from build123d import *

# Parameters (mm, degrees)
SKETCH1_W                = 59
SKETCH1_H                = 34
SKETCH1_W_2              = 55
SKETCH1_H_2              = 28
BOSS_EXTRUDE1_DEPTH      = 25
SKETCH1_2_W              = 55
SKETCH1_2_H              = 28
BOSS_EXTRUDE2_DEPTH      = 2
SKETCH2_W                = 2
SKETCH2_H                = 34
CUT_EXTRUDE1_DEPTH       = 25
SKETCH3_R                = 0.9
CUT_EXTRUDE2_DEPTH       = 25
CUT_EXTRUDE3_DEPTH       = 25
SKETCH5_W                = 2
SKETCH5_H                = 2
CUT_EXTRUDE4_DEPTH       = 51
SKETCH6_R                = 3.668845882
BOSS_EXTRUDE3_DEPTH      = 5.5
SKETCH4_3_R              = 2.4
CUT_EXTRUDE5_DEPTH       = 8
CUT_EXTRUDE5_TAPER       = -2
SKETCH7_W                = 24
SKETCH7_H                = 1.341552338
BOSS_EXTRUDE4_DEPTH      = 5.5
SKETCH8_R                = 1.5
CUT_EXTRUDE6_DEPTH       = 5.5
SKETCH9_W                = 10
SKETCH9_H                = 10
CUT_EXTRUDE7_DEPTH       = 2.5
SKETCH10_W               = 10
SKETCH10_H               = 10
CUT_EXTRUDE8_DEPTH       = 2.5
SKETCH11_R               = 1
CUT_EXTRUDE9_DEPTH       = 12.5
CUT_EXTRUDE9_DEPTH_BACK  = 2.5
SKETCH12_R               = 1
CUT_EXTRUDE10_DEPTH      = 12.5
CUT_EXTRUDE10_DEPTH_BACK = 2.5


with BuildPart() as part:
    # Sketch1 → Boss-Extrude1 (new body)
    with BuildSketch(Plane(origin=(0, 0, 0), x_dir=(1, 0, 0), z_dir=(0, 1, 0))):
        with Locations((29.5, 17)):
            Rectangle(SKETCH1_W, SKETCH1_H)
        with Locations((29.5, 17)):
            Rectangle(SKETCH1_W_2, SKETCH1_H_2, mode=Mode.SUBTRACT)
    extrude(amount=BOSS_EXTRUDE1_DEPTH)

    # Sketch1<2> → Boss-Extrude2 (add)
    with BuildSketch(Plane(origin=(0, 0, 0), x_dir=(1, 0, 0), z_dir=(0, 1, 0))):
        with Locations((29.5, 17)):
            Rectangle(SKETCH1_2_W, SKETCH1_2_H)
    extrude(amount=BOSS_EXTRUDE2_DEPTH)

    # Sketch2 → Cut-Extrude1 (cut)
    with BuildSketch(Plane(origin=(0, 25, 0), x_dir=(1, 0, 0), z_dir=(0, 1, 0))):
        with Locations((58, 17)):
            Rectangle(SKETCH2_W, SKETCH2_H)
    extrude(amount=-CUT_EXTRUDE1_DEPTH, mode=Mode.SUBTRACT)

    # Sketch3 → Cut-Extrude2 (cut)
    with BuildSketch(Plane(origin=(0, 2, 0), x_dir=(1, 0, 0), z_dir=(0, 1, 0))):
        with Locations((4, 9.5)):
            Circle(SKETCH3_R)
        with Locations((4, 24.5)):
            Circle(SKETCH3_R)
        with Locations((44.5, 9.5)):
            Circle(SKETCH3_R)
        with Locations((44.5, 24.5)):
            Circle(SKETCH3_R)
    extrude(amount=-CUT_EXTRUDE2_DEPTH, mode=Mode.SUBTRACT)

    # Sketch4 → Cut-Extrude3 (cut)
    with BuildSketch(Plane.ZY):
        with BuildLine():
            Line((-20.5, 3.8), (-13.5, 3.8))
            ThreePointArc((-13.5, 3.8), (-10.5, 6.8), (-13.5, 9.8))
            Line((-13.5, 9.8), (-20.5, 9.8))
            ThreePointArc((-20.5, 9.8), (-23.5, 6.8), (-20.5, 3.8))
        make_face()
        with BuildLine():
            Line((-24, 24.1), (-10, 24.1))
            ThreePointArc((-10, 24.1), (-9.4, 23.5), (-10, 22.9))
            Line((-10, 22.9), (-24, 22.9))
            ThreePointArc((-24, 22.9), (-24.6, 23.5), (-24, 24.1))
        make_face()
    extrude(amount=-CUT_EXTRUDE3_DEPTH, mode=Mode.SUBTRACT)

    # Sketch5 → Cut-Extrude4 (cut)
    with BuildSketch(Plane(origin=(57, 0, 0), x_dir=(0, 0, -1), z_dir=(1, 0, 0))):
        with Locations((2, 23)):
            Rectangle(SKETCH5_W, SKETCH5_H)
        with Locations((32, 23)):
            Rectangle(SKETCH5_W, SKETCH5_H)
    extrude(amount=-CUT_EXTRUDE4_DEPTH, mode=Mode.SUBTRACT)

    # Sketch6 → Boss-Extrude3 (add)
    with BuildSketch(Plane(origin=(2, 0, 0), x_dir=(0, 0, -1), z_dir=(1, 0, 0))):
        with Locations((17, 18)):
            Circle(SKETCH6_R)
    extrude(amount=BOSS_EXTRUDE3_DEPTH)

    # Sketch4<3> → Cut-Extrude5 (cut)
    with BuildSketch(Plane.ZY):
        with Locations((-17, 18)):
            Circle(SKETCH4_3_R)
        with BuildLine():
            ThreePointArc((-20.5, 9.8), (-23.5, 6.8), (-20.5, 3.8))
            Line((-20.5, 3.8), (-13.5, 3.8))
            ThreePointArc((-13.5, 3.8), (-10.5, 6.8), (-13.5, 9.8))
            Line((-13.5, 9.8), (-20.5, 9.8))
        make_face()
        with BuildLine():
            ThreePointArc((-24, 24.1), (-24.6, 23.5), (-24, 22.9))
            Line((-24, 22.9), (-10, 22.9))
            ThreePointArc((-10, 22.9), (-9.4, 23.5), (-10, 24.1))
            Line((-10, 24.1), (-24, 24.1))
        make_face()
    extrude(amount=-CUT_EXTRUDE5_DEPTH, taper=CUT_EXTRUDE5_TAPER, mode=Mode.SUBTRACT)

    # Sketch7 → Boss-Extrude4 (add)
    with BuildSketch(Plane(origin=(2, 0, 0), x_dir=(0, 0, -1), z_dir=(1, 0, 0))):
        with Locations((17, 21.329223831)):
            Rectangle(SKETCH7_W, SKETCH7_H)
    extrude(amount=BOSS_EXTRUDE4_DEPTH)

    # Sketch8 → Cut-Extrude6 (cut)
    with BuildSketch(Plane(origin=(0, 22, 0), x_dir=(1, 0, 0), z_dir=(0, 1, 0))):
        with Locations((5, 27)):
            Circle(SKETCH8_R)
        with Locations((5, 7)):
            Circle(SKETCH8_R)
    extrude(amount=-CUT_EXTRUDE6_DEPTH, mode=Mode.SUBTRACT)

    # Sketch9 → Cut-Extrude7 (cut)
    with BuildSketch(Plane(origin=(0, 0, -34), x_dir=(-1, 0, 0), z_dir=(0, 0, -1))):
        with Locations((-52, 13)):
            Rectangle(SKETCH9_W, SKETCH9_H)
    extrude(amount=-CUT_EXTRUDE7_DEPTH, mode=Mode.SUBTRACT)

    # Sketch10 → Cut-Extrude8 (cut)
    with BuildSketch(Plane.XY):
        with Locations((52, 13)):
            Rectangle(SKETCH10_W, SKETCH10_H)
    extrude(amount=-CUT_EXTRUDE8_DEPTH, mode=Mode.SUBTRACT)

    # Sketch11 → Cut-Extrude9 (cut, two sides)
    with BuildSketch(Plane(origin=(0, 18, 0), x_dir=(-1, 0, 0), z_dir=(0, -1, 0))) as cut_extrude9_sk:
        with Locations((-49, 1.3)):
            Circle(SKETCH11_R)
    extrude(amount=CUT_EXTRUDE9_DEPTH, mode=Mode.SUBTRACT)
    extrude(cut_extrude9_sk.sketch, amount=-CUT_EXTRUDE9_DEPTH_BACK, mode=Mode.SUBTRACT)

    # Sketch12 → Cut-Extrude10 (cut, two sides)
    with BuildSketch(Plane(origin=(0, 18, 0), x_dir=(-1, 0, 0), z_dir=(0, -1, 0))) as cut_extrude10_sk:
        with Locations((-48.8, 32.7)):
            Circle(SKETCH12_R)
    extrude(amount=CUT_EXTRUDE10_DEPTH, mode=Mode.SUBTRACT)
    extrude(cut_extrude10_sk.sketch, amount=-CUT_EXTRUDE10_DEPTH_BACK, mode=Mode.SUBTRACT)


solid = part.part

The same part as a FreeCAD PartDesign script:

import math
import FreeCAD as App
import Part
import Sketcher
Q = App.Units.Quantity

doc = App.newDocument("Part")
body = doc.addObject("PartDesign::Body", "Body")

# Sketch on XZ plane
sketch1 = body.newObject("Sketcher::SketchObject", "Sketch")
sketch1.AttachmentSupport = (doc.getObject("XZ_Plane"), [""])
sketch1.MapMode = "FlatFace"
sketch1.addGeometry([
    Part.LineSegment(App.Vector(0, -34, 0), App.Vector(0, 0, 0)),  # 0
    Part.LineSegment(App.Vector(0, 0, 0), App.Vector(59, 0, 0)),  # 1
    Part.LineSegment(App.Vector(59, 0, 0), App.Vector(59, -34, 0)),  # 2
    Part.LineSegment(App.Vector(59, -34, 0), App.Vector(0, -34, 0)),  # 3
    Part.LineSegment(App.Vector(57, -3, 0), App.Vector(2, -3, 0)),  # 4
    Part.LineSegment(App.Vector(2, -3, 0), App.Vector(2, -31, 0)),  # 5
    Part.LineSegment(App.Vector(2, -31, 0), App.Vector(57, -31, 0)),  # 6
    Part.LineSegment(App.Vector(57, -31, 0), App.Vector(57, -3, 0)),  # 7
], False)
sketch1.addConstraint([
    Sketcher.Constraint("Coincident", 0, 2, 1, 1),
    Sketcher.Constraint("Coincident", 1, 2, 2, 1),
    Sketcher.Constraint("Coincident", 2, 2, 3, 1),
    Sketcher.Constraint("Coincident", 3, 2, 0, 1),
    Sketcher.Constraint("Coincident", 4, 2, 5, 1),
    Sketcher.Constraint("Coincident", 5, 2, 6, 1),
    Sketcher.Constraint("Coincident", 6, 2, 7, 1),
    Sketcher.Constraint("Coincident", 7, 2, 4, 1),
    Sketcher.Constraint("Vertical", 0),
    Sketcher.Constraint("Horizontal", 1),
    Sketcher.Constraint("Vertical", 2),
    Sketcher.Constraint("Horizontal", 3),
    Sketcher.Constraint("Horizontal", 4),
    Sketcher.Constraint("Vertical", 5),
    Sketcher.Constraint("Horizontal", 6),
    Sketcher.Constraint("Vertical", 7),
    Sketcher.Constraint("Coincident", 0, 2, -1, 1),
    Sketcher.Constraint("DistanceX", 1, 1, 1, 2, Q("59 mm")),
    Sketcher.Constraint("DistanceX", 4, 2, 4, 1, Q("55 mm")),
    Sketcher.Constraint("DistanceY", 0, 1, 0, 2, Q("34 mm")),
    Sketcher.Constraint("DistanceY", 5, 2, 5, 1, Q("28 mm")),
    Sketcher.Constraint("DistanceX", -1, 1, 4, 2, Q("2 mm")),
    Sketcher.Constraint("DistanceY", 4, 2, -1, 1, Q("3 mm")),
])
pad1 = body.newObject("PartDesign::Pad", "Pad")
pad1.Profile = sketch1
pad1.Length = 25
pad1.Reversed = True

# Sketch on XZ plane
sketch2 = body.newObject("Sketcher::SketchObject", "Sketch001")
sketch2.AttachmentSupport = (doc.getObject("XZ_Plane"), [""])
sketch2.MapMode = "FlatFace"
sketch2.addGeometry([
    Part.LineSegment(App.Vector(2, -31, 0), App.Vector(2, -3, 0)),
    Part.LineSegment(App.Vector(2, -3, 0), App.Vector(57, -3, 0)),
    Part.LineSegment(App.Vector(57, -3, 0), App.Vector(57, -31, 0)),
    Part.LineSegment(App.Vector(57, -31, 0), App.Vector(2, -31, 0)),
], False)
sketch2.addConstraint([
    Sketcher.Constraint("Coincident", 0, 2, 1, 1),
    Sketcher.Constraint("Coincident", 1, 2, 2, 1),
    Sketcher.Constraint("Coincident", 2, 2, 3, 1),
    Sketcher.Constraint("Coincident", 3, 2, 0, 1),
    Sketcher.Constraint("Vertical", 0),
    Sketcher.Constraint("Horizontal", 1),
    Sketcher.Constraint("Vertical", 2),
    Sketcher.Constraint("Horizontal", 3),
    Sketcher.Constraint("DistanceX", 1, 1, 1, 2, Q("55 mm")),
    Sketcher.Constraint("DistanceY", 0, 1, 0, 2, Q("28 mm")),
    Sketcher.Constraint("DistanceX", -1, 1, 0, 2, Q("2 mm")),
    Sketcher.Constraint("DistanceY", 0, 2, -1, 1, Q("3 mm")),
])
pad2 = body.newObject("PartDesign::Pad", "Pad001")
pad2.Profile = sketch2
pad2.Length = 2
pad2.Reversed = True

# Sketch on XZ plane
sketch3 = body.newObject("Sketcher::SketchObject", "Sketch002")
sketch3.AttachmentSupport = (doc.getObject("XZ_Plane"), [""])
sketch3.MapMode = "FlatFace"
sketch3.AttachmentOffset = App.Placement(App.Vector(0, 0, -25), App.Rotation())
sketch3.addGeometry([
    Part.LineSegment(App.Vector(57, -34, 0), App.Vector(57, 0, 0)),
    Part.LineSegment(App.Vector(57, 0, 0), App.Vector(59, 0, 0)),
    Part.LineSegment(App.Vector(59, 0, 0), App.Vector(59, -34, 0)),
    Part.LineSegment(App.Vector(59, -34, 0), App.Vector(57, -34, 0)),
], False)
sketch3.addConstraint([
    Sketcher.Constraint("Coincident", 0, 2, 1, 1),
    Sketcher.Constraint("Coincident", 1, 2, 2, 1),
    Sketcher.Constraint("Coincident", 2, 2, 3, 1),
    Sketcher.Constraint("Coincident", 3, 2, 0, 1),
    Sketcher.Constraint("Vertical", 0),
    Sketcher.Constraint("Horizontal", 1),
    Sketcher.Constraint("Vertical", 2),
    Sketcher.Constraint("Horizontal", 3),
    Sketcher.Constraint("PointOnObject", 0, 2, -1),
    Sketcher.Constraint("DistanceX", 1, 1, 1, 2, Q("2 mm")),
    Sketcher.Constraint("DistanceY", 0, 1, 0, 2, Q("34 mm")),
    Sketcher.Constraint("DistanceX", -1, 1, 0, 2, Q("57 mm")),
])
pocket1 = body.newObject("PartDesign::Pocket", "Pocket")
pocket1.Profile = sketch3
pocket1.Length = 25
pocket1.Reversed = True

# Sketch on XZ plane
sketch4 = body.newObject("Sketcher::SketchObject", "Sketch003")
sketch4.AttachmentSupport = (doc.getObject("XZ_Plane"), [""])
sketch4.MapMode = "FlatFace"
sketch4.AttachmentOffset = App.Placement(App.Vector(0, 0, -2), App.Rotation())
sketch4.addGeometry([
    Part.Circle(App.Vector(4, -9.5, 0), App.Vector(0, 0, 1), 0.9),
    Part.Circle(App.Vector(4, -24.5, 0), App.Vector(0, 0, 1), 0.9),
    Part.Circle(App.Vector(44.5, -9.5, 0), App.Vector(0, 0, 1), 0.9),
    Part.Circle(App.Vector(44.5, -24.5, 0), App.Vector(0, 0, 1), 0.9),
], False)
sketch4.addConstraint([
    Sketcher.Constraint("Equal", 0, 1),
    Sketcher.Constraint("Equal", 1, 2),
    Sketcher.Constraint("Equal", 2, 3),
    Sketcher.Constraint("Horizontal", 0, 3, 2, 3),
    Sketcher.Constraint("Horizontal", 1, 3, 3, 3),
    Sketcher.Constraint("Vertical", 0, 3, 1, 3),
    Sketcher.Constraint("Vertical", 2, 3, 3, 3),
    Sketcher.Constraint("Diameter", 0, Q("1.8 mm")),
    Sketcher.Constraint("DistanceX", -1, 1, 0, 3, Q("4 mm")),
    Sketcher.Constraint("DistanceY", 1, 3, 0, 3, Q("15 mm")),
    Sketcher.Constraint("DistanceY", 0, 3, -1, 1, Q("9.5 mm")),
    Sketcher.Constraint("DistanceX", -1, 1, 2, 3, Q("44.5 mm")),
])
pocket2 = body.newObject("PartDesign::Pocket", "Pocket001")
pocket2.Profile = sketch4
pocket2.Length = 25
pocket2.Reversed = True

# Sketch on YZ plane
sketch5 = body.newObject("Sketcher::SketchObject", "Sketch004")
sketch5.AttachmentSupport = (doc.getObject("YZ_Plane"), [""])
sketch5.MapMode = "FlatFace"
sketch5.addGeometry([
    Part.LineSegment(App.Vector(3.8, -20.5, 0), App.Vector(3.8, -13.5, 0)),  # 0
    Part.ArcOfCircle(Part.Circle(App.Vector(6.8, -13.5, 0), App.Vector(0, 0, 1), 3), math.radians(0), math.radians(180)),  # 1
    Part.LineSegment(App.Vector(9.8, -13.5, 0), App.Vector(9.8, -20.5, 0)),  # 2
    Part.ArcOfCircle(Part.Circle(App.Vector(6.8, -20.5, 0), App.Vector(0, 0, 1), 3), math.radians(180), math.radians(360)),  # 3
    Part.LineSegment(App.Vector(24.1, -10, 0), App.Vector(24.1, -24, 0)),  # 4
    Part.ArcOfCircle(Part.Circle(App.Vector(23.5, -24, 0), App.Vector(0, 0, 1), 0.6), math.radians(180), math.radians(360)),  # 5
    Part.LineSegment(App.Vector(22.9, -24, 0), App.Vector(22.9, -10, 0)),  # 6
    Part.ArcOfCircle(Part.Circle(App.Vector(23.5, -10, 0), App.Vector(0, 0, 1), 0.6), math.radians(0), math.radians(180)),  # 7
], False)
sketch5.addConstraint([
    Sketcher.Constraint("Tangent", 0, 2, 1, 2),
    Sketcher.Constraint("Tangent", 1, 1, 2, 1),
    Sketcher.Constraint("Tangent", 2, 2, 3, 2),
    Sketcher.Constraint("Tangent", 3, 1, 0, 1),
    Sketcher.Constraint("Tangent", 4, 2, 5, 2),
    Sketcher.Constraint("Tangent", 5, 1, 6, 1),
    Sketcher.Constraint("Tangent", 6, 2, 7, 2),
    Sketcher.Constraint("Tangent", 7, 1, 4, 1),
    Sketcher.Constraint("Vertical", 0),
    Sketcher.Constraint("Vertical", 2),
    Sketcher.Constraint("Vertical", 4),
    Sketcher.Constraint("Vertical", 6),
    Sketcher.Constraint("Radius", 1, Q("3 mm")),
    Sketcher.Constraint("Radius", 5, Q("0.6 mm")),
    Sketcher.Constraint("DistanceY", 0, 1, 0, 2, Q("7 mm")),
    Sketcher.Constraint("DistanceY", 4, 2, 4, 1, Q("14 mm")),
    Sketcher.Constraint("DistanceY", 5, 3, -1, 1, Q("24 mm")),
    Sketcher.Constraint("DistanceX", -1, 1, 1, 3, Q("6.8 mm")),
    Sketcher.Constraint("DistanceY", 1, 3, -1, 1, Q("13.5 mm")),
    Sketcher.Constraint("DistanceX", -1, 1, 5, 3, Q("23.5 mm")),
])
pocket3 = body.newObject("PartDesign::Pocket", "Pocket002")
pocket3.Profile = sketch5
pocket3.Length = 25
pocket3.Reversed = True

# Sketch on YZ plane
sketch6 = body.newObject("Sketcher::SketchObject", "Sketch005")
sketch6.AttachmentSupport = (doc.getObject("YZ_Plane"), [""])
sketch6.MapMode = "FlatFace"
sketch6.AttachmentOffset = App.Placement(App.Vector(0, 0, 57), App.Rotation())
sketch6.addGeometry([
    Part.LineSegment(App.Vector(24, -1, 0), App.Vector(22, -1, 0)),  # 0
    Part.LineSegment(App.Vector(22, -1, 0), App.Vector(22, -3, 0)),  # 1
    Part.LineSegment(App.Vector(22, -3, 0), App.Vector(24, -3, 0)),  # 2
    Part.LineSegment(App.Vector(24, -3, 0), App.Vector(24, -1, 0)),  # 3
    Part.LineSegment(App.Vector(24, -31, 0), App.Vector(22, -31, 0)),  # 4
    Part.LineSegment(App.Vector(22, -31, 0), App.Vector(22, -33, 0)),  # 5
    Part.LineSegment(App.Vector(22, -33, 0), App.Vector(24, -33, 0)),  # 6
    Part.LineSegment(App.Vector(24, -33, 0), App.Vector(24, -31, 0)),  # 7
], False)
sketch6.addConstraint([
    Sketcher.Constraint("Coincident", 0, 2, 1, 1),
    Sketcher.Constraint("Coincident", 1, 2, 2, 1),
    Sketcher.Constraint("Coincident", 2, 2, 3, 1),
    Sketcher.Constraint("Coincident", 3, 2, 0, 1),
    Sketcher.Constraint("Coincident", 4, 2, 5, 1),
    Sketcher.Constraint("Coincident", 5, 2, 6, 1),
    Sketcher.Constraint("Coincident", 6, 2, 7, 1),
    Sketcher.Constraint("Coincident", 7, 2, 4, 1),
    Sketcher.Constraint("Horizontal", 0),
    Sketcher.Constraint("Vertical", 1),
    Sketcher.Constraint("Horizontal", 2),
    Sketcher.Constraint("Vertical", 3),
    Sketcher.Constraint("Horizontal", 4),
    Sketcher.Constraint("Vertical", 5),
    Sketcher.Constraint("Horizontal", 6),
    Sketcher.Constraint("Vertical", 7),
    Sketcher.Constraint("Vertical", 1, 2, 4, 2),
    Sketcher.Constraint("Vertical", 3, 2, 6, 2),
    Sketcher.Constraint("Equal", 6, 1),
    Sketcher.Constraint("Equal", 3, 5),
    Sketcher.Constraint("DistanceX", 0, 2, 0, 1, Q("2 mm")),
    Sketcher.Constraint("DistanceX", -1, 1, 0, 2, Q("22 mm")),
    Sketcher.Constraint("DistanceY", 0, 2, -1, 1, Q("1 mm")),
    Sketcher.Constraint("DistanceY", 4, 2, -1, 1, Q("31 mm")),
])
pocket4 = body.newObject("PartDesign::Pocket", "Pocket003")
pocket4.Profile = sketch6
pocket4.Length = 51

# Sketch on YZ plane
sketch7 = body.newObject("Sketcher::SketchObject", "Sketch006")
sketch7.AttachmentSupport = (doc.getObject("YZ_Plane"), [""])
sketch7.MapMode = "FlatFace"
sketch7.AttachmentOffset = App.Placement(App.Vector(0, 0, 2), App.Rotation())
sketch7.addGeometry(Part.Circle(App.Vector(18, -17, 0), App.Vector(0, 0, 1), 3.7), False)
sketch7.addConstraint([
    Sketcher.Constraint("DistanceX", -1, 1, 0, 3, Q("18 mm")),
    Sketcher.Constraint("DistanceY", 0, 3, -1, 1, Q("17 mm")),
    Sketcher.Constraint("Diameter", 0, Q("7.337692 mm")),
])
pad3 = body.newObject("PartDesign::Pad", "Pad002")
pad3.Profile = sketch7
pad3.Length = 5.5

# Sketch on YZ plane
sketch8 = body.newObject("Sketcher::SketchObject", "Sketch007")
sketch8.AttachmentSupport = (doc.getObject("YZ_Plane"), [""])
sketch8.MapMode = "FlatFace"
sketch8.addGeometry([
    Part.Circle(App.Vector(18, -17, 0), App.Vector(0, 0, 1), 2.4),  # 0
    Part.ArcOfCircle(Part.Circle(App.Vector(6.8, -20.5, 0), App.Vector(0, 0, 1), 3), math.radians(180), math.radians(360)),  # 1
    Part.LineSegment(App.Vector(3.8, -20.5, 0), App.Vector(3.8, -13.5, 0)),  # 2
    Part.ArcOfCircle(Part.Circle(App.Vector(6.8, -13.5, 0), App.Vector(0, 0, 1), 3), math.radians(0), math.radians(180)),  # 3
    Part.LineSegment(App.Vector(9.8, -13.5, 0), App.Vector(9.8, -20.5, 0)),  # 4
    Part.ArcOfCircle(Part.Circle(App.Vector(23.5, -24, 0), App.Vector(0, 0, 1), 0.6), math.radians(180), math.radians(360)),  # 5
    Part.LineSegment(App.Vector(22.9, -24, 0), App.Vector(22.9, -10, 0)),  # 6
    Part.ArcOfCircle(Part.Circle(App.Vector(23.5, -10, 0), App.Vector(0, 0, 1), 0.6), math.radians(0), math.radians(180)),  # 7
    Part.LineSegment(App.Vector(24.1, -10, 0), App.Vector(24.1, -24, 0)),  # 8
], False)
sketch8.addConstraint([
    Sketcher.Constraint("Tangent", 1, 1, 2, 1),
    Sketcher.Constraint("Tangent", 2, 2, 3, 2),
    Sketcher.Constraint("Tangent", 3, 1, 4, 1),
    Sketcher.Constraint("Tangent", 4, 2, 1, 2),
    Sketcher.Constraint("Tangent", 5, 1, 6, 1),
    Sketcher.Constraint("Tangent", 6, 2, 7, 2),
    Sketcher.Constraint("Tangent", 7, 1, 8, 1),
    Sketcher.Constraint("Tangent", 8, 2, 5, 2),
    Sketcher.Constraint("Vertical", 2),
    Sketcher.Constraint("Vertical", 4),
    Sketcher.Constraint("Vertical", 6),
    Sketcher.Constraint("Vertical", 8),
    Sketcher.Constraint("Radius", 1, Q("3 mm")),
    Sketcher.Constraint("Diameter", 0, Q("4.8 mm")),
    Sketcher.Constraint("Radius", 5, Q("0.6 mm")),
    Sketcher.Constraint("DistanceY", 2, 1, 2, 2, Q("7 mm")),
    Sketcher.Constraint("DistanceY", 6, 1, 6, 2, Q("14 mm")),
    Sketcher.Constraint("DistanceX", -1, 1, 0, 3, Q("18 mm")),
    Sketcher.Constraint("DistanceY", 0, 3, -1, 1, Q("17 mm")),
    Sketcher.Constraint("DistanceY", 5, 3, -1, 1, Q("24 mm")),
    Sketcher.Constraint("DistanceX", -1, 1, 1, 3, Q("6.8 mm")),
    Sketcher.Constraint("DistanceY", 1, 3, -1, 1, Q("20.5 mm")),
    Sketcher.Constraint("DistanceX", -1, 1, 5, 3, Q("23.5 mm")),
])
pocket5 = body.newObject("PartDesign::Pocket", "Pocket004")
pocket5.Profile = sketch8
pocket5.Length = 8
pocket5.Reversed = True
pocket5.TaperAngle = 2

# Sketch on YZ plane
sketch9 = body.newObject("Sketcher::SketchObject", "Sketch008")
sketch9.AttachmentSupport = (doc.getObject("YZ_Plane"), [""])
sketch9.MapMode = "FlatFace"
sketch9.AttachmentOffset = App.Placement(App.Vector(0, 0, 2), App.Rotation())
sketch9.addGeometry([
    Part.LineSegment(App.Vector(22, -5, 0), App.Vector(20.7, -5, 0)),
    Part.LineSegment(App.Vector(20.7, -5, 0), App.Vector(20.7, -29, 0)),
    Part.LineSegment(App.Vector(20.7, -29, 0), App.Vector(22, -29, 0)),
    Part.LineSegment(App.Vector(22, -29, 0), App.Vector(22, -5, 0)),
], False)
sketch9.addConstraint([
    Sketcher.Constraint("Coincident", 0, 2, 1, 1),
    Sketcher.Constraint("Coincident", 1, 2, 2, 1),
    Sketcher.Constraint("Coincident", 2, 2, 3, 1),
    Sketcher.Constraint("Coincident", 3, 2, 0, 1),
    Sketcher.Constraint("Horizontal", 0),
    Sketcher.Constraint("Vertical", 1),
    Sketcher.Constraint("Horizontal", 2),
    Sketcher.Constraint("Vertical", 3),
    Sketcher.Constraint("DistanceY", 1, 2, 1, 1, Q("24 mm")),
    Sketcher.Constraint("DistanceY", 0, 2, -1, 1, Q("5 mm")),
    Sketcher.Constraint("DistanceX", -1, 1, 2, 2, Q("22 mm")),
    Sketcher.Constraint("DistanceX", 0, 2, 0, 1, Q("1.341552 mm")),
])
pad4 = body.newObject("PartDesign::Pad", "Pad003")
pad4.Profile = sketch9
pad4.Length = 5.5

# Sketch on XZ plane
sketch10 = body.newObject("Sketcher::SketchObject", "Sketch009")
sketch10.AttachmentSupport = (doc.getObject("XZ_Plane"), [""])
sketch10.MapMode = "FlatFace"
sketch10.AttachmentOffset = App.Placement(App.Vector(0, 0, -22), App.Rotation())
sketch10.addGeometry([
    Part.Circle(App.Vector(5, -27, 0), App.Vector(0, 0, 1), 1.5),
    Part.Circle(App.Vector(5, -7, 0), App.Vector(0, 0, 1), 1.5),
], False)
sketch10.addConstraint([
    Sketcher.Constraint("Equal", 0, 1),
    Sketcher.Constraint("Vertical", 0, 3, 1, 3),
    Sketcher.Constraint("Diameter", 0, Q("3 mm")),
    Sketcher.Constraint("DistanceX", -1, 1, 0, 3, Q("5 mm")),
    Sketcher.Constraint("DistanceY", 0, 3, -1, 1, Q("27 mm")),
    Sketcher.Constraint("DistanceY", 1, 3, -1, 1, Q("7 mm")),
])
pocket6 = body.newObject("PartDesign::Pocket", "Pocket005")
pocket6.Profile = sketch10
pocket6.Length = 5.5
pocket6.Reversed = True

# Sketch on XY plane
sketch11 = body.newObject("Sketcher::SketchObject", "Sketch010")
sketch11.AttachmentSupport = (doc.getObject("XY_Plane"), [""])
sketch11.MapMode = "FlatFace"
sketch11.AttachmentOffset = App.Placement(App.Vector(0, 0, -34), App.Rotation())
sketch11.addGeometry([
    Part.LineSegment(App.Vector(57, 18, 0), App.Vector(57, 8, 0)),
    Part.LineSegment(App.Vector(57, 8, 0), App.Vector(47, 8, 0)),
    Part.LineSegment(App.Vector(47, 8, 0), App.Vector(47, 18, 0)),
    Part.LineSegment(App.Vector(47, 18, 0), App.Vector(57, 18, 0)),
], False)
sketch11.addConstraint([
    Sketcher.Constraint("Coincident", 0, 2, 1, 1),
    Sketcher.Constraint("Coincident", 1, 2, 2, 1),
    Sketcher.Constraint("Coincident", 2, 2, 3, 1),
    Sketcher.Constraint("Coincident", 3, 2, 0, 1),
    Sketcher.Constraint("Vertical", 0),
    Sketcher.Constraint("Horizontal", 1),
    Sketcher.Constraint("Vertical", 2),
    Sketcher.Constraint("Horizontal", 3),
    Sketcher.Constraint("Equal", 3, 0),
    Sketcher.Constraint("DistanceX", 1, 2, 1, 1, Q("10 mm")),
    Sketcher.Constraint("DistanceX", -1, 1, 0, 2, Q("57 mm")),
    Sketcher.Constraint("DistanceY", -1, 1, 0, 2, Q("8 mm")),
])
pocket7 = body.newObject("PartDesign::Pocket", "Pocket006")
pocket7.Profile = sketch11
pocket7.Length = 2.5
pocket7.Reversed = True

# Sketch on XY plane
sketch12 = body.newObject("Sketcher::SketchObject", "Sketch011")
sketch12.AttachmentSupport = (doc.getObject("XY_Plane"), [""])
sketch12.MapMode = "FlatFace"
sketch12.addGeometry([
    Part.LineSegment(App.Vector(47, 18, 0), App.Vector(47, 8, 0)),
    Part.LineSegment(App.Vector(47, 8, 0), App.Vector(57, 8, 0)),
    Part.LineSegment(App.Vector(57, 8, 0), App.Vector(57, 18, 0)),
    Part.LineSegment(App.Vector(57, 18, 0), App.Vector(47, 18, 0)),
], False)
sketch12.addConstraint([
    Sketcher.Constraint("Coincident", 0, 2, 1, 1),
    Sketcher.Constraint("Coincident", 1, 2, 2, 1),
    Sketcher.Constraint("Coincident", 2, 2, 3, 1),
    Sketcher.Constraint("Coincident", 3, 2, 0, 1),
    Sketcher.Constraint("Vertical", 0),
    Sketcher.Constraint("Horizontal", 1),
    Sketcher.Constraint("Vertical", 2),
    Sketcher.Constraint("Horizontal", 3),
    Sketcher.Constraint("Equal", 3, 0),
    Sketcher.Constraint("DistanceX", 1, 1, 1, 2, Q("10 mm")),
    Sketcher.Constraint("DistanceX", -1, 1, 0, 2, Q("47 mm")),
    Sketcher.Constraint("DistanceY", -1, 1, 0, 2, Q("8 mm")),
])
pocket8 = body.newObject("PartDesign::Pocket", "Pocket007")
pocket8.Profile = sketch12
pocket8.Length = 2.5

# Sketch on XZ plane
sketch13 = body.newObject("Sketcher::SketchObject", "Sketch012")
sketch13.AttachmentSupport = (doc.getObject("XZ_Plane"), [""])
sketch13.MapMode = "FlatFace"
sketch13.AttachmentOffset = App.Placement(App.Vector(0, 0, -18), App.Rotation())
sketch13.addGeometry(Part.Circle(App.Vector(49, -1.3, 0), App.Vector(0, 0, 1), 1), False)
sketch13.addConstraint([
    Sketcher.Constraint("Diameter", 0, Q("2 mm")),
    Sketcher.Constraint("DistanceX", -1, 1, 0, 3, Q("49 mm")),
    Sketcher.Constraint("DistanceY", 0, 3, -1, 1, Q("1.3 mm")),
])
pocket9 = body.newObject("PartDesign::Pocket", "Pocket008")
pocket9.Profile = sketch13
pocket9.Type = "TwoLengths"
pocket9.Length = 12.5
pocket9.Length2 = 2.5
pocket9.Reversed = True

# Sketch on XZ plane
sketch14 = body.newObject("Sketcher::SketchObject", "Sketch013")
sketch14.AttachmentSupport = (doc.getObject("XZ_Plane"), [""])
sketch14.MapMode = "FlatFace"
sketch14.AttachmentOffset = App.Placement(App.Vector(0, 0, -18), App.Rotation())
sketch14.addGeometry(Part.Circle(App.Vector(48.8, -32.7, 0), App.Vector(0, 0, 1), 1), False)
sketch14.addConstraint([
    Sketcher.Constraint("Diameter", 0, Q("2 mm")),
    Sketcher.Constraint("DistanceX", -1, 1, 0, 3, Q("48.8 mm")),
    Sketcher.Constraint("DistanceY", 0, 3, -1, 1, Q("32.7 mm")),
])
pocket10 = body.newObject("PartDesign::Pocket", "Pocket009")
pocket10.Profile = sketch14
pocket10.Type = "TwoLengths"
pocket10.Length = 12.5
pocket10.Length2 = 2.5
pocket10.Reversed = True

doc.recompute()
